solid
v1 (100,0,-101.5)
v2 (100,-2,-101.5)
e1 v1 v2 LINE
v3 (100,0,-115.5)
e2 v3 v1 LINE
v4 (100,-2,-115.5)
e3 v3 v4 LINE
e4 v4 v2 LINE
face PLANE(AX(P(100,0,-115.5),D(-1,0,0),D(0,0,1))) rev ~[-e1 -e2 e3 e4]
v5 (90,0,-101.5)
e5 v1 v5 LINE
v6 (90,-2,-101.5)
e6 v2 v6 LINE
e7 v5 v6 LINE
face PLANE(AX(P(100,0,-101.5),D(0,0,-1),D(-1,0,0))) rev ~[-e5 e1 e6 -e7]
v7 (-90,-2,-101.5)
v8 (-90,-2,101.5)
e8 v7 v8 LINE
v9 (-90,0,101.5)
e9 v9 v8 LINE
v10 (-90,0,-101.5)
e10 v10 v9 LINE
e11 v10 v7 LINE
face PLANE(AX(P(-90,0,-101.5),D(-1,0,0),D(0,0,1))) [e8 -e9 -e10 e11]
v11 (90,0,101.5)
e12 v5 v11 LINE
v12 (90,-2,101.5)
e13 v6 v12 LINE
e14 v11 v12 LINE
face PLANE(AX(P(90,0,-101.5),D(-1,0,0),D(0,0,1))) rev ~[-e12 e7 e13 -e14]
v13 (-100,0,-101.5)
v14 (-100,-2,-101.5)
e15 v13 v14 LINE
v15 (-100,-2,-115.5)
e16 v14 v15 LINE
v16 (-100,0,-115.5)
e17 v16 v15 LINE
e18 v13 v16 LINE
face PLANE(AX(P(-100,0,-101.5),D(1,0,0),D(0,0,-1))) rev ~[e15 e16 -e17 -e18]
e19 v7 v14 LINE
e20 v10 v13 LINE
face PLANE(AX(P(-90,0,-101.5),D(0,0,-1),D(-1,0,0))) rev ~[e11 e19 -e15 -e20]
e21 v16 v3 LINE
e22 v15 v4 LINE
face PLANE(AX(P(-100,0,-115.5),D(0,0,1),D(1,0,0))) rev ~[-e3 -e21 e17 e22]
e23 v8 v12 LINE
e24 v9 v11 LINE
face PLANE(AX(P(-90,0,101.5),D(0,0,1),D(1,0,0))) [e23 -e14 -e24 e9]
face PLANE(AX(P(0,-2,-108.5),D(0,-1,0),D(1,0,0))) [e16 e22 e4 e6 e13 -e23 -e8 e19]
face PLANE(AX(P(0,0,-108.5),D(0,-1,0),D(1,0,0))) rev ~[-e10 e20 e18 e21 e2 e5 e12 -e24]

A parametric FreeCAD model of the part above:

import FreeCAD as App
import Part
import Sketcher
from FreeCAD import Vector
Q = App.Units.Quantity


def add_polygon(sketch, points):
    """Adds a closed chain of lines whose ends are joined by coincident constraints."""
    first, n = sketch.GeometryCount, len(points)
    for a, b in zip(points, points[1:] + points[:1]):
        sketch.addGeometry(Part.LineSegment(App.Vector(*a, 0), App.Vector(*b, 0)), False)
    for i in range(n):
        sketch.addConstraint(Sketcher.Constraint("Coincident", first + i, 2, first + (i + 1) % n, 1))

doc = App.newDocument("Part")
body = doc.addObject("PartDesign::Body", "Body")

# Sketch on XZ plane
sketch1 = doc.addObject("Sketcher::SketchObject", "Sketch")
body.addObject(sketch1)
sketch1.AttachmentSupport = (doc.XZ_Plane, [""])
sketch1.MapMode = "FlatFace"
add_polygon(sketch1, [(100, -102), (90, -102), (90, 102), (-90, 102), (-90, -102), (-100, -102), (-100, -116), (100, -116)])  # lines 0-7
sketch1.addConstraint([
    Sketcher.Constraint("Horizontal", 0),
    Sketcher.Constraint("Vertical", 1),
    Sketcher.Constraint("Horizontal", 2),
    Sketcher.Constraint("Vertical", 3),
    Sketcher.Constraint("Horizontal", 4),
    Sketcher.Constraint("Vertical", 5),
    Sketcher.Constraint("Horizontal", 6),
    Sketcher.Constraint("Vertical", 7),
    Sketcher.Constraint("Symmetric", 0, 2, 2, 2, -1, 1),
    Sketcher.Constraint("Symmetric", 4, 2, 7, 2, -2),
    Sketcher.Constraint("DistanceX", 0, 2, 0, 1, Q("10 mm")),
    Sketcher.Constraint("DistanceX", 2, 2, 2, 1, Q("180 mm")),
    Sketcher.Constraint("DistanceY", 1, 1, 1, 2, Q("203 mm")),
    Sketcher.Constraint("DistanceY", 5, 2, 5, 1, Q("14 mm")),
])
pad1 = doc.addObject("PartDesign::Pad", "Pad")
body.addObject(pad1)
pad1.Profile = sketch1
pad1.Length = 2

doc.recompute()
